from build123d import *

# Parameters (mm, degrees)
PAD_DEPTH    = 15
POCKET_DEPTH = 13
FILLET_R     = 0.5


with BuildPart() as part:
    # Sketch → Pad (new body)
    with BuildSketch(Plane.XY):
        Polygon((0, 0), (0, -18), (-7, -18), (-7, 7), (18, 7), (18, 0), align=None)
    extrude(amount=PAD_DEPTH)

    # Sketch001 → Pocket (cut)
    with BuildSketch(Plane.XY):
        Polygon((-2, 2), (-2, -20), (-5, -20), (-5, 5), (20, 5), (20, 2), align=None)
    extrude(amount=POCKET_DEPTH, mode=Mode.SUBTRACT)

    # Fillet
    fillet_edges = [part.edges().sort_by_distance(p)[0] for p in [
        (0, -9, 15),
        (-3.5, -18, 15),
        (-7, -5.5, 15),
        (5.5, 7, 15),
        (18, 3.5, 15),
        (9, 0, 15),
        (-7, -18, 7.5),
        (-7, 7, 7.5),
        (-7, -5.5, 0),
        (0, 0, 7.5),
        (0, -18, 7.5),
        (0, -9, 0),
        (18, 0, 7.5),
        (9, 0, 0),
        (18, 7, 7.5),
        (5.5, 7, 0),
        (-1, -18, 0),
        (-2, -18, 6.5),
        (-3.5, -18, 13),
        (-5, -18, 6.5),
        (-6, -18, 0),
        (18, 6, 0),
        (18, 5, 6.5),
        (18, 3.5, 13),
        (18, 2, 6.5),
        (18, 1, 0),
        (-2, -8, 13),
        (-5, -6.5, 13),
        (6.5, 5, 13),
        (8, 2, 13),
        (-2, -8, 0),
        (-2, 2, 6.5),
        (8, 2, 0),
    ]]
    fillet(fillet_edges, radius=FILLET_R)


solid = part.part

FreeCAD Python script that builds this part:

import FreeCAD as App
import Part
import Sketcher
Q = App.Units.Quantity


def edges_at(feature, points):
    """Names of the edges that pass closest to the given points."""
    edges = feature.Shape.Edges
    near = lambda p: min(range(len(edges)), key=lambda i: edges[i].distToShape(Part.Vertex(*p))[0])
    return sorted({f"Edge{near(p) + 1}" for p in points})

doc = App.newDocument("Part")
body = doc.addObject("PartDesign::Body", "Body")

# Sketch on XY plane
sketch1 = doc.addObject("Sketcher::SketchObject", "Sketch")
body.addObject(sketch1)
sketch1.AttachmentSupport = (doc.XY_Plane, [""])
sketch1.MapMode = "FlatFace"
sketch1.addGeometry(Part.LineSegment(App.Vector(0, -18, 0), App.Vector(0, 0, 0)), False)
sketch1.addGeometry(Part.LineSegment(App.Vector(0, 0, 0), App.Vector(18, 0, 0)), False)
sketch1.addGeometry(Part.LineSegment(App.Vector(18, 0, 0), App.Vector(18, 7, 0)), False)
sketch1.addGeometry(Part.LineSegment(App.Vector(18, 7, 0), App.Vector(-7, 7, 0)), False)
sketch1.addGeometry(Part.LineSegment(App.Vector(-7, 7, 0), App.Vector(-7, -18, 0)), False)
sketch1.addGeometry(Part.LineSegment(App.Vector(-7, -18, 0), App.Vector(0, -18, 0)), False)
sketch1.addConstraint(Sketcher.Constraint("Coincident", 0, 2, 1, 1))
sketch1.addConstraint(Sketcher.Constraint("Coincident", 1, 2, 2, 1))
sketch1.addConstraint(Sketcher.Constraint("Coincident", 2, 2, 3, 1))
sketch1.addConstraint(Sketcher.Constraint("Coincident", 3, 2, 4, 1))
sketch1.addConstraint(Sketcher.Constraint("Coincident", 4, 2, 5, 1))
sketch1.addConstraint(Sketcher.Constraint("Coincident", 5, 2, 0, 1))
sketch1.addConstraint(Sketcher.Constraint("Vertical", 0))
sketch1.addConstraint(Sketcher.Constraint("Horizontal", 1))
sketch1.addConstraint(Sketcher.Constraint("Vertical", 2))
sketch1.addConstraint(Sketcher.Constraint("Horizontal", 3))
sketch1.addConstraint(Sketcher.Constraint("Vertical", 4))
sketch1.addConstraint(Sketcher.Constraint("Horizontal", 5))
sketch1.addConstraint(Sketcher.Constraint("Coincident", 0, 2, -1, 1))
sketch1.addConstraint(Sketcher.Constraint("Equal", 1, 0))
sketch1.addConstraint(Sketcher.Constraint("Equal", 5, 2))
sketch1.addConstraint(Sketcher.Constraint("DistanceX", 1, 1, 1, 2, Q("18 mm")))
sketch1.addConstraint(Sketcher.Constraint("DistanceX", 3, 2, 3, 1, Q("25 mm")))
pad1 = doc.addObject("PartDesign::Pad", "Pad")
body.addObject(pad1)
pad1.Profile = sketch1
pad1.Length = 15

# Sketch on XY plane
sketch2 = doc.addObject("Sketcher::SketchObject", "Sketch001")
body.addObject(sketch2)
sketch2.AttachmentSupport = (doc.XY_Plane, [""])
sketch2.MapMode = "FlatFace"
sketch2.addGeometry(Part.LineSegment(App.Vector(-2, -20, 0), App.Vector(-2, 2, 0)), False)
sketch2.addGeometry(Part.LineSegment(App.Vector(-2, 2, 0), App.Vector(20, 2, 0)), False)
sketch2.addGeometry(Part.LineSegment(App.Vector(20, 2, 0), App.Vector(20, 5, 0)), False)
sketch2.addGeometry(Part.LineSegment(App.Vector(20, 5, 0), App.Vector(-5, 5, 0)), False)
sketch2.addGeometry(Part.LineSegment(App.Vector(-5, 5, 0), App.Vector(-5, -20, 0)), False)
sketch2.addGeometry(Part.LineSegment(App.Vector(-5, -20, 0), App.Vector(-2, -20, 0)), False)
sketch2.addConstraint(Sketcher.Constraint("Coincident", 0, 2, 1, 1))
sketch2.addConstraint(Sketcher.Constraint("Coincident", 1, 2, 2, 1))
sketch2.addConstraint(Sketcher.Constraint("Coincident", 2, 2, 3, 1))
sketch2.addConstraint(Sketcher.Constraint("Coincident", 3, 2, 4, 1))
sketch2.addConstraint(Sketcher.Constraint("Coincident", 4, 2, 5, 1))
sketch2.addConstraint(Sketcher.Constraint("Coincident", 5, 2, 0, 1))
sketch2.addConstraint(Sketcher.Constraint("Vertical", 0))
sketch2.addConstraint(Sketcher.Constraint("Horizontal", 1))
sketch2.addConstraint(Sketcher.Constraint("Vertical", 2))
sketch2.addConstraint(Sketcher.Constraint("Horizontal", 3))
sketch2.addConstraint(Sketcher.Constraint("Vertical", 4))
sketch2.addConstraint(Sketcher.Constraint("Horizontal", 5))
sketch2.addConstraint(Sketcher.Constraint("Equal", 1, 0))
sketch2.addConstraint(Sketcher.Constraint("Equal", 5, 2))
sketch2.addConstraint(Sketcher.Constraint("DistanceX", 1, 1, 1, 2, Q("22 mm")))
sketch2.addConstraint(Sketcher.Constraint("DistanceX", 3, 2, 3, 1, Q("25 mm")))
sketch2.addConstraint(Sketcher.Constraint("DistanceX", 0, 2, -1, 1, Q("2 mm")))
sketch2.addConstraint(Sketcher.Constraint("DistanceY", -1, 1, 0, 2, Q("2 mm")))
pocket1 = doc.addObject("PartDesign::Pocket", "Pocket")
body.addObject(pocket1)
pocket1.Profile = sketch2
pocket1.Length = 13
pocket1.Reversed = True
doc.recompute()

fillet = doc.addObject("PartDesign::Fillet", "Fillet")
body.addObject(fillet)
fillet.Base = (pocket1, edges_at(pocket1, [
    (0, -9, 15),
    (-3.5, -18, 15),
    (-7, -5.5, 15),
    (5.5, 7, 15),
    (18, 3.5, 15),
    (9, 0, 15),
    (-7, -18, 7.5),
    (-7, 7, 7.5),
    (-7, -5.5, 0),
    (0, 0, 7.5),
    (0, -18, 7.5),
    (0, -9, 0),
    (18, 0, 7.5),
    (9, 0, 0),
    (18, 7, 7.5),
    (5.5, 7, 0),
    (-1, -18, 0),
    (-2, -18, 6.5),
    (-3.5, -18, 13),
    (-5, -18, 6.5),
    (-6, -18, 0),
    (18, 6, 0),
    (18, 5, 6.5),
    (18, 3.5, 13),
    (18, 2, 6.5),
    (18, 1, 0),
    (-2, -8, 13),
    (-5, -6.5, 13),
    (6.5, 5, 13),
    (8, 2, 13),
    (-2, -8, 0),
    (-2, 2, 6.5),
    (8, 2, 0),
]))
fillet.Radius = 0.5

doc.recompute()
